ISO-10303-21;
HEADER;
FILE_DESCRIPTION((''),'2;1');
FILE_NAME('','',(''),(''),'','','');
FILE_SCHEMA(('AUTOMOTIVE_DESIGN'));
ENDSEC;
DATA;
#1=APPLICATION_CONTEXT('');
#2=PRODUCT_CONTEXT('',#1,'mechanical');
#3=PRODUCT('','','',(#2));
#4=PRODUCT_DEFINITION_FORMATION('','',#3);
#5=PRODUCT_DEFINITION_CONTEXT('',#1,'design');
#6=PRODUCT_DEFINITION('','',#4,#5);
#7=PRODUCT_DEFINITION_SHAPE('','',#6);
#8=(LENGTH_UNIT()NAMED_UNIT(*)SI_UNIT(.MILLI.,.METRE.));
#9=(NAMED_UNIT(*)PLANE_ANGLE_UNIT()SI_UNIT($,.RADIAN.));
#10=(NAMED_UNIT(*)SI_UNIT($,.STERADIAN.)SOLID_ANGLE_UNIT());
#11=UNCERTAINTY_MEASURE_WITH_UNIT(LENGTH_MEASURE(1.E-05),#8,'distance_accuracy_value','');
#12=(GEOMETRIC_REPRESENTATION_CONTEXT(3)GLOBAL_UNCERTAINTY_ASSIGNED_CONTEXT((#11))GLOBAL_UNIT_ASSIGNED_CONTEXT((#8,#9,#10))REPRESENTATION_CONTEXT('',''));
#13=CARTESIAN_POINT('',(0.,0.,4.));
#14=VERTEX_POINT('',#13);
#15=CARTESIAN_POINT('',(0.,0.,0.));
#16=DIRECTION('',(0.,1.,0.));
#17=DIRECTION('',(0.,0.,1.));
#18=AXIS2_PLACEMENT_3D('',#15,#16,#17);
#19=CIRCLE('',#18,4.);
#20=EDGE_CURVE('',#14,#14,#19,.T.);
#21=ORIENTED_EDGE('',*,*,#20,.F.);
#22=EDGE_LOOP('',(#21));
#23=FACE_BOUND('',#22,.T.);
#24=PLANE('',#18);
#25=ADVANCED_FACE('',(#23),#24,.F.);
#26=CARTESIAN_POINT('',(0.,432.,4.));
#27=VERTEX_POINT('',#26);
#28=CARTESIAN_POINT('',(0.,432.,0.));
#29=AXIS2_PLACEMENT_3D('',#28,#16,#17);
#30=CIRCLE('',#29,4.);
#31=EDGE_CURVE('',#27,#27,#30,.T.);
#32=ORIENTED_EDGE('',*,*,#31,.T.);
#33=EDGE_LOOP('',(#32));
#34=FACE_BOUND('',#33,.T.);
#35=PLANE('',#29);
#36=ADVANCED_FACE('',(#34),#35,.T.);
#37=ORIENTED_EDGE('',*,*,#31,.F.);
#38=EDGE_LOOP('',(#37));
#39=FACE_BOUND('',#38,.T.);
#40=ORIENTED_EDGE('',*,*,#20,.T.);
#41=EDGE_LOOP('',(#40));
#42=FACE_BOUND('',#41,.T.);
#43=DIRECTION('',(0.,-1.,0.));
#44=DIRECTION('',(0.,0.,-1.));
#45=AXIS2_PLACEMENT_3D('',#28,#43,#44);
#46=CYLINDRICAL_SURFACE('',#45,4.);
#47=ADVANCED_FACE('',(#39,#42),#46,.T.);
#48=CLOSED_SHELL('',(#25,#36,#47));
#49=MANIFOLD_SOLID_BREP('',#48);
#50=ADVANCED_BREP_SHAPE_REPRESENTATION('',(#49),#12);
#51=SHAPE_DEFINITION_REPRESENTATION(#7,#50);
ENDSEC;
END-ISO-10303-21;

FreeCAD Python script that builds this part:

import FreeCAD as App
import Part
import Sketcher
from FreeCAD import Vector

doc = App.newDocument("Part")
body = doc.addObject("PartDesign::Body", "Body")

# Sketch on XZ plane
sketch1 = doc.addObject("Sketcher::SketchObject", "Sketch")
body.addObject(sketch1)
sketch1.AttachmentSupport = (doc.XZ_Plane, [""])
sketch1.MapMode = "FlatFace"
sketch1.addGeometry(Part.Circle(Vector(0, 0, 0), Vector(0, 0, 1), 4), False)
sketch1.addConstraint([
    Sketcher.Constraint("Coincident", 0, 3, -1, 1),
    Sketcher.Constraint("Diameter", 0, 8.0),
])
pad1 = doc.addObject("PartDesign::Pad", "Pad")
body.addObject(pad1)
pad1.Profile = sketch1
pad1.Length = 432
pad1.Reversed = True

doc.recompute()
